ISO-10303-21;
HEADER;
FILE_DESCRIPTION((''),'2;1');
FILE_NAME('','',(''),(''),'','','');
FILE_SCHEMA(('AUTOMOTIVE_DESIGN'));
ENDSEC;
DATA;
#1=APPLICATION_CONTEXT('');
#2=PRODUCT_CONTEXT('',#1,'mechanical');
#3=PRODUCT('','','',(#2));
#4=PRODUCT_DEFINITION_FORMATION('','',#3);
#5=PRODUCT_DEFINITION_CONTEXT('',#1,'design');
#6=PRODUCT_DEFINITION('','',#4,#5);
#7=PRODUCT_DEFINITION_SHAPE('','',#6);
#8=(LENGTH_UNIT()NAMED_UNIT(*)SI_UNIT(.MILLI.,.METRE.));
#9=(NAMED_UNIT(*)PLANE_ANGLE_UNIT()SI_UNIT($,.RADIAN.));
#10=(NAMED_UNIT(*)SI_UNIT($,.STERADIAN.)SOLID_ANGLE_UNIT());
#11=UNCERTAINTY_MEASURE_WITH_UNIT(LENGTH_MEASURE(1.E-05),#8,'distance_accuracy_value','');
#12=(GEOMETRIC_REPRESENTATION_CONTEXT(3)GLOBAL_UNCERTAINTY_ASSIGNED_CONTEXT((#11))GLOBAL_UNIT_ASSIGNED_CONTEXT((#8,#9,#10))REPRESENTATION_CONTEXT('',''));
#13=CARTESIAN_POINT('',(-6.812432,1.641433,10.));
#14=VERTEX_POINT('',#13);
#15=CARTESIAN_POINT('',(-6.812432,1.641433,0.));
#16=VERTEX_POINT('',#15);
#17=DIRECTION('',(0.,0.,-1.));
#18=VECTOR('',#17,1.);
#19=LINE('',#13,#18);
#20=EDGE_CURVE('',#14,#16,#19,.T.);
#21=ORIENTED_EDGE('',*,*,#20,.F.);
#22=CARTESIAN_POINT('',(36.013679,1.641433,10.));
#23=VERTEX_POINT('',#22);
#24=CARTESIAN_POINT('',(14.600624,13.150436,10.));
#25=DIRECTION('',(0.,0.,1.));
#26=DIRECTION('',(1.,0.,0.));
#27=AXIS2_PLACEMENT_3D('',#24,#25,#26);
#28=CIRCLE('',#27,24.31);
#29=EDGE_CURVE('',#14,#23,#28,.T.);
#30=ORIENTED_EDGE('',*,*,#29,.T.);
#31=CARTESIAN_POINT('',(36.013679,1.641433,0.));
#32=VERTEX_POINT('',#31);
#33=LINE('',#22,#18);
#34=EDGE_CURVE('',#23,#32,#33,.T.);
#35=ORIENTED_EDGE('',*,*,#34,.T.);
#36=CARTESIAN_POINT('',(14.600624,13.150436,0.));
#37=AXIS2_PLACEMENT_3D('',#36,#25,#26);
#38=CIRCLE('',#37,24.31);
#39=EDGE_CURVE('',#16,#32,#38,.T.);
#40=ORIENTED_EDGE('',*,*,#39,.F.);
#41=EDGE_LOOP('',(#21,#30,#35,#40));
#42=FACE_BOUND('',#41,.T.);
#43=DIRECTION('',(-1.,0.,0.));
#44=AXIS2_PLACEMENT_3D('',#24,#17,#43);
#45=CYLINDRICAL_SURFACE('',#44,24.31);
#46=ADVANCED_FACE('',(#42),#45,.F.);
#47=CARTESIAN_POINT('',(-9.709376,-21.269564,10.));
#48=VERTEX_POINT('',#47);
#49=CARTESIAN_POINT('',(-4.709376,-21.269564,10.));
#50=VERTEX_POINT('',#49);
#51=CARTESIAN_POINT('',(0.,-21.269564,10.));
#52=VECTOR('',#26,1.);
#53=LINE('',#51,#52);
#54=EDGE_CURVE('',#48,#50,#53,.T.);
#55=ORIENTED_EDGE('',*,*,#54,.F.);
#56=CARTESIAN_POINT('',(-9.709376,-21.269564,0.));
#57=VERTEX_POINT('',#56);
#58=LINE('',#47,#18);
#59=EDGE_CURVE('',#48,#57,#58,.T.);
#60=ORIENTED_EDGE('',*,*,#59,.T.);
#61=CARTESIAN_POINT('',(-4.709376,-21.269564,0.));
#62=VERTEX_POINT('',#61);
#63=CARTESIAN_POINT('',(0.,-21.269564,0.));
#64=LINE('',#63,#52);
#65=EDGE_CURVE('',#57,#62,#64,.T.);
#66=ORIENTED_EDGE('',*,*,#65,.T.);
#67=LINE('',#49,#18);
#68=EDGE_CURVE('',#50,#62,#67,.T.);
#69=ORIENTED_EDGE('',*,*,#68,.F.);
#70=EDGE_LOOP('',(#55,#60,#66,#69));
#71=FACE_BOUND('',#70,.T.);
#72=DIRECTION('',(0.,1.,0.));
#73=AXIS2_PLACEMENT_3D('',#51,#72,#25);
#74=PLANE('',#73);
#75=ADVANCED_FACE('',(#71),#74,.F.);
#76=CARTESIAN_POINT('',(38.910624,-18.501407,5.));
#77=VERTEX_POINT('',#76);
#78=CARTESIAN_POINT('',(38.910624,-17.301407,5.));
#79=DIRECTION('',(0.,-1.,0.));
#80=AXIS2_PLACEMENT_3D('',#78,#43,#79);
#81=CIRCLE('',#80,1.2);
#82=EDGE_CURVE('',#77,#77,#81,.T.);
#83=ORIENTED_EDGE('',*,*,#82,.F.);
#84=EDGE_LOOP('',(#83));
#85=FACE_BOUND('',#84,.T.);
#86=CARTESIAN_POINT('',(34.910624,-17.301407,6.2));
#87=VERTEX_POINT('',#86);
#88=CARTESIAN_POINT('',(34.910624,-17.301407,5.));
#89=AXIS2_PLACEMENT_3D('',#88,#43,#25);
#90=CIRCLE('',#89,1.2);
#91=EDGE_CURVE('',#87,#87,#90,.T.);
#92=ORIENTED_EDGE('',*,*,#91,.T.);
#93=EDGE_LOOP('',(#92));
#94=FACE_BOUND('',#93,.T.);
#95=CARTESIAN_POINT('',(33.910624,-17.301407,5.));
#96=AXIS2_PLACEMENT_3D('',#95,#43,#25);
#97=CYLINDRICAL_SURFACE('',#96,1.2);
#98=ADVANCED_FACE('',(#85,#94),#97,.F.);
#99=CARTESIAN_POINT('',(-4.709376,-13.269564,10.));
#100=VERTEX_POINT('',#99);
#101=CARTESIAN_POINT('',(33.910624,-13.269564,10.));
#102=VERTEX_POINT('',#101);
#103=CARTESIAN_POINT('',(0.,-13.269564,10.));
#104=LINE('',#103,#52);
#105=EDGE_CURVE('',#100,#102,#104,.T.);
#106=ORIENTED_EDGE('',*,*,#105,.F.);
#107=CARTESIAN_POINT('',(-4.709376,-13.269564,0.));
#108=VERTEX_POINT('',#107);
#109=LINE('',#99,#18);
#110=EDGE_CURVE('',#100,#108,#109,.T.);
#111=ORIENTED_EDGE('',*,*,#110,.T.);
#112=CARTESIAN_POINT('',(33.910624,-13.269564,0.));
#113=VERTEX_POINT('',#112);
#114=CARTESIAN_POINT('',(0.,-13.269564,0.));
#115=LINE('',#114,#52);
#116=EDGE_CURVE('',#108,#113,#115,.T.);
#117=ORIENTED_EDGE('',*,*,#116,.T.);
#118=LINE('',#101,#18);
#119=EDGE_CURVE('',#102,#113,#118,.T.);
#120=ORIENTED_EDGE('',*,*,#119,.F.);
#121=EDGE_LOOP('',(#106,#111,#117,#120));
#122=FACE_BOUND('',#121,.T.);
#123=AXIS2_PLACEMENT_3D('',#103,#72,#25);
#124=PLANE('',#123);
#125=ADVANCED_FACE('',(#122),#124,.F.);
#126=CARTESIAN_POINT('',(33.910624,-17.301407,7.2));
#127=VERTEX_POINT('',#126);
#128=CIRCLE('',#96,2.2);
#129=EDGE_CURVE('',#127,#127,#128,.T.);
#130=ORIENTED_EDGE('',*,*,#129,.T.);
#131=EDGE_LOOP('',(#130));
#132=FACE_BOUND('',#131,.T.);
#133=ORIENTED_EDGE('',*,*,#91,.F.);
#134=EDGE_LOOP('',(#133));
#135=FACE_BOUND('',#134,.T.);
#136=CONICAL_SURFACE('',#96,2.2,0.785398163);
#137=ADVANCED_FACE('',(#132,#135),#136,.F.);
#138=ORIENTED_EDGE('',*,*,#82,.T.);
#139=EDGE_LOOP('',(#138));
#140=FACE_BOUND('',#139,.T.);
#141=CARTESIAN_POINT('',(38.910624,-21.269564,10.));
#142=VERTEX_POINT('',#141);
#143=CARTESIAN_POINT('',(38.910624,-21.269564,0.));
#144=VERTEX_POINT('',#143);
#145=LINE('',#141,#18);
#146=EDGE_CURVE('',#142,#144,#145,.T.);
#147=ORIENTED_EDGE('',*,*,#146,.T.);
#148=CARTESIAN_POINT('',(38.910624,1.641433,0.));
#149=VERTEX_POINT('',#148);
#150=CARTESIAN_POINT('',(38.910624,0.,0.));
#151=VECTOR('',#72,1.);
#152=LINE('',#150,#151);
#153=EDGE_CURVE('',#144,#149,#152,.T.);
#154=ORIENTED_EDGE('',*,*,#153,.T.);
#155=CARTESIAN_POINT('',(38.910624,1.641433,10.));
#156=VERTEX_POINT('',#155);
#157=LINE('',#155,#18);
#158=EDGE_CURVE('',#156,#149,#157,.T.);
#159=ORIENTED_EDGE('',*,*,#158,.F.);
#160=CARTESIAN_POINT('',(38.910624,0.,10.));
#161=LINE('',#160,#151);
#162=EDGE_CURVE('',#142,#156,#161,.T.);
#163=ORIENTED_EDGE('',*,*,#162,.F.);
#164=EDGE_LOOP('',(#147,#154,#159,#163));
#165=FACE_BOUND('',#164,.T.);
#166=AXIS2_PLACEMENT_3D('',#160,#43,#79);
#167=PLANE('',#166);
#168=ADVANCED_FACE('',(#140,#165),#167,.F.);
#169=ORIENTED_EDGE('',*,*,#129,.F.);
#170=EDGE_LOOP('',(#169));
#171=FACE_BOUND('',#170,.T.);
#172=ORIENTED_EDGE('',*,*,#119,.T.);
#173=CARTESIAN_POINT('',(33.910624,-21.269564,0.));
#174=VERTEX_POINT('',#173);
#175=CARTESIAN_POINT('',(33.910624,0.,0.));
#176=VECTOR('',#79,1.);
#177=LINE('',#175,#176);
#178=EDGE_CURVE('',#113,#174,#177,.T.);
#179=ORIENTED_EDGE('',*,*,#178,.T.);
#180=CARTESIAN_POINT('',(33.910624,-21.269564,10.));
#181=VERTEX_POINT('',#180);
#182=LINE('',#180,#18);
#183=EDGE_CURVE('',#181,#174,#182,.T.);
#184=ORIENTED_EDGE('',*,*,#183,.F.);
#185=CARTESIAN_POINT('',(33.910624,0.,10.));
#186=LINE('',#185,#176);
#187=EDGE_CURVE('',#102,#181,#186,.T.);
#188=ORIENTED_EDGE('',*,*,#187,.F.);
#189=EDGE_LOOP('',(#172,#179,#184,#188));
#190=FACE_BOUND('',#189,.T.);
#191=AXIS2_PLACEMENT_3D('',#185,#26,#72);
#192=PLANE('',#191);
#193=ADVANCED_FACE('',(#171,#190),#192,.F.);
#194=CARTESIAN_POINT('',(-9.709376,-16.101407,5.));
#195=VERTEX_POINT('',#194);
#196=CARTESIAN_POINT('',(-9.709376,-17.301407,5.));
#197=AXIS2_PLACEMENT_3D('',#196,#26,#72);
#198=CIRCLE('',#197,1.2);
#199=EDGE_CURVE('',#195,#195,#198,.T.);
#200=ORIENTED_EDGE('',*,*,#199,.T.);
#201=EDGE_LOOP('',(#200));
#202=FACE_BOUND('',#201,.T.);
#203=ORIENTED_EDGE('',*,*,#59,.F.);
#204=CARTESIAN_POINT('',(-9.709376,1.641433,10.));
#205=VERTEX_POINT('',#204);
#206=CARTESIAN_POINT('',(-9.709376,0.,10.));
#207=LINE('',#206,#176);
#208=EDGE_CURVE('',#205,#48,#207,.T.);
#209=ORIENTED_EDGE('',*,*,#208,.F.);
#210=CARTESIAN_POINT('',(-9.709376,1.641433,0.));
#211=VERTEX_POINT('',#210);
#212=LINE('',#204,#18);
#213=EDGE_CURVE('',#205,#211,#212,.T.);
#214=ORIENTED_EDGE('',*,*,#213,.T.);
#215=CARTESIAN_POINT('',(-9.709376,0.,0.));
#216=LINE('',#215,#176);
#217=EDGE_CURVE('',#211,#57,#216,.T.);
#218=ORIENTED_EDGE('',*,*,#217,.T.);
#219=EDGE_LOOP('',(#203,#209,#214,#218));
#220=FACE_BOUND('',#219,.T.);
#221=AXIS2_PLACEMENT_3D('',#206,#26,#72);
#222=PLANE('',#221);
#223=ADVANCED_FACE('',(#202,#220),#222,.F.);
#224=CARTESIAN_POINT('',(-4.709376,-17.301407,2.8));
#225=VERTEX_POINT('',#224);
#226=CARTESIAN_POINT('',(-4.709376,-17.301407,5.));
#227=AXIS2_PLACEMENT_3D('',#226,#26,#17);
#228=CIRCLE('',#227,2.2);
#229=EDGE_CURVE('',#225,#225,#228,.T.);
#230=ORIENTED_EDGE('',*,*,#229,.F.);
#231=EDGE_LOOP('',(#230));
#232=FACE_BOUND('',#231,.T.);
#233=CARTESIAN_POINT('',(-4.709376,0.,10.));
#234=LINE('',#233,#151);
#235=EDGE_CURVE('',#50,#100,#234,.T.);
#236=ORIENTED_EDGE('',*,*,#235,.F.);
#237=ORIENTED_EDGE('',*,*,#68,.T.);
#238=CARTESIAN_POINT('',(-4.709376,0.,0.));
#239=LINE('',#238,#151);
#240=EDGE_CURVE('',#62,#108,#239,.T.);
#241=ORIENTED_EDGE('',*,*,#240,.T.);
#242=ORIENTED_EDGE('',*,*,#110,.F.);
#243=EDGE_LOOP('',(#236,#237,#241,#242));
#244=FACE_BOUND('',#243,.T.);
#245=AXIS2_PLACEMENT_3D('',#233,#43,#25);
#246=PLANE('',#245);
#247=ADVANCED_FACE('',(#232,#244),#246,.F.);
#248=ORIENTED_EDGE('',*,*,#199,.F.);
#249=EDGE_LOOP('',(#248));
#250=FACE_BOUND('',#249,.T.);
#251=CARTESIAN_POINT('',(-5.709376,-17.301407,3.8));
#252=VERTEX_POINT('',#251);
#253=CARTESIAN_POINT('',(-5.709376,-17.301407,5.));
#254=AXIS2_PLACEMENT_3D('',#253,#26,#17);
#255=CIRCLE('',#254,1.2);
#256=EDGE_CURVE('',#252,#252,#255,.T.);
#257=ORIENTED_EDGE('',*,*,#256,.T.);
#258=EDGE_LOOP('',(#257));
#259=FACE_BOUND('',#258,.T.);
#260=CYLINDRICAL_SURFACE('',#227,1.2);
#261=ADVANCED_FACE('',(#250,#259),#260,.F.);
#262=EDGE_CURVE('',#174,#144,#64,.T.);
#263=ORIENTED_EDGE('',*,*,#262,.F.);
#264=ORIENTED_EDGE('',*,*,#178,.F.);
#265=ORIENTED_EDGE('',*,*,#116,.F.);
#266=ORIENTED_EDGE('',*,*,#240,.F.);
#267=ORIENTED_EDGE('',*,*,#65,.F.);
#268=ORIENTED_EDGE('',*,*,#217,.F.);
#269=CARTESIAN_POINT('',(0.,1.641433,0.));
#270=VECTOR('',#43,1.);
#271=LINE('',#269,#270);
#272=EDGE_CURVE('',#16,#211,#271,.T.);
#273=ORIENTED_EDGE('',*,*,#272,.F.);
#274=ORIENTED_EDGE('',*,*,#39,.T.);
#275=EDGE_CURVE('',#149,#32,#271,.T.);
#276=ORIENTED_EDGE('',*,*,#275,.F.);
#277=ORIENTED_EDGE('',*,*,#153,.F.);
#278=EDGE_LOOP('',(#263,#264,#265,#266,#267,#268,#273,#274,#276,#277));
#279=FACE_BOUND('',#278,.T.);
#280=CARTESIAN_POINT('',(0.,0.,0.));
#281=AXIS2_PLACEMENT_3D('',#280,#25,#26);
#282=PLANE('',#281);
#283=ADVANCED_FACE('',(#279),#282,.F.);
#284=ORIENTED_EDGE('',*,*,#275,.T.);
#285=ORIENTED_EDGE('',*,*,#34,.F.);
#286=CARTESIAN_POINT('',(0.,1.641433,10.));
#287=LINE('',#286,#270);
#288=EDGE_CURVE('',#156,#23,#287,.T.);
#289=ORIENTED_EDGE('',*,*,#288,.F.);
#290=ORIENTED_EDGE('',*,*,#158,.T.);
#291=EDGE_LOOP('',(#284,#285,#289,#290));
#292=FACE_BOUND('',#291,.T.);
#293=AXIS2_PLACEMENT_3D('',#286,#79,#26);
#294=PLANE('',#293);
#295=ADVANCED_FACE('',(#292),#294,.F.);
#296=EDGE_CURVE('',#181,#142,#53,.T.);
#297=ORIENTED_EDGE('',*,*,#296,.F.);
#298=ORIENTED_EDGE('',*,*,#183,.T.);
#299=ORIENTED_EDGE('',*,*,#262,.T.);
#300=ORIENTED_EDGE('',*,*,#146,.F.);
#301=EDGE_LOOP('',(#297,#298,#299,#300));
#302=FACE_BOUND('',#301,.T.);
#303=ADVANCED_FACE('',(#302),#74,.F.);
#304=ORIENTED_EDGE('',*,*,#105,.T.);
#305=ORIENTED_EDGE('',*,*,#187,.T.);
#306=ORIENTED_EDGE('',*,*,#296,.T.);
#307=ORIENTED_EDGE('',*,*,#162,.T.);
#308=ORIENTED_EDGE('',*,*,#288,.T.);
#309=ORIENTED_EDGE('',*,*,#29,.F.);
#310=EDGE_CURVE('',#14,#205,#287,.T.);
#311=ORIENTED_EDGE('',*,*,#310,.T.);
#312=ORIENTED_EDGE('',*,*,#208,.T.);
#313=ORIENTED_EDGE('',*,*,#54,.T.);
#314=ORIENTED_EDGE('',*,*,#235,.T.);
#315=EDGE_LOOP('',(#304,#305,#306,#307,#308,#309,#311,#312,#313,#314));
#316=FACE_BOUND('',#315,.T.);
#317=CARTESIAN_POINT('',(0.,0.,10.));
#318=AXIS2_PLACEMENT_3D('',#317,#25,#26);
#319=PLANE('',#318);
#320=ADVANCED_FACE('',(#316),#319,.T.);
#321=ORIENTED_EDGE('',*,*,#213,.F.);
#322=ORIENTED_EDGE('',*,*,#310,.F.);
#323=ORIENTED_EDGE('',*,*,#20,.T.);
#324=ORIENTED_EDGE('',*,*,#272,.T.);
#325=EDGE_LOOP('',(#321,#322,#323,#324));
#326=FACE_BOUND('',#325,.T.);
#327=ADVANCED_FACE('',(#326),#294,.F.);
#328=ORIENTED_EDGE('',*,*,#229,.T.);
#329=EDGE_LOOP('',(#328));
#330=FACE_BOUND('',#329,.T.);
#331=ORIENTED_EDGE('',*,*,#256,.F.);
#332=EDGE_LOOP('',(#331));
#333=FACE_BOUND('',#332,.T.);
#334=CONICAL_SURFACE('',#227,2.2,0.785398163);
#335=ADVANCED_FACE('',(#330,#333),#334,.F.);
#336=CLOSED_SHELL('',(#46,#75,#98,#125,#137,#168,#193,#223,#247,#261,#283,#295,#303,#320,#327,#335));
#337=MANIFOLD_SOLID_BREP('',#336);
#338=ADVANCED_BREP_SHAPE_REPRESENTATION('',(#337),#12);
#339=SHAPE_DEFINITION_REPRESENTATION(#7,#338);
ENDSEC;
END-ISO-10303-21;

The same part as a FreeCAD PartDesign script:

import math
import FreeCAD as App
import Part
import Sketcher
Q = App.Units.Quantity

doc = App.newDocument("Part")
params = doc.addObject("Spreadsheet::Sheet", "Params")
for row, (alias, value) in enumerate([
    ("sketch1_width", "5 mm"),
    ("sketch1_height", "8 mm"),
    ("sketch1_radius", "24.31 mm"),
    ("sketch1_width2", "38.62 mm"),
    ("pad1_length", "10 mm"),
    ("sketch2_width", "15.5 mm"),
    ("sketch2_height", "2.2 mm"),
    ("groove_angle", "360 deg"),
], start=1):
    params.set(f"A{row}", alias)
    params.set(f"B{row}", "=" + value)
    params.setAlias(f"B{row}", alias)

body = doc.addObject("PartDesign::Body", "Body")

# Sketch on XY plane
sketch1 = body.newObject("Sketcher::SketchObject", "Sketch")
sketch1.AttachmentSupport = (doc.getObject("XY_Plane"), [""])
sketch1.MapMode = "FlatFace"
sketch1.addGeometry([
    Part.LineSegment(App.Vector(-9.7, 1.6, 0), App.Vector(-9.7, -21.3, 0)),  # 0
    Part.LineSegment(App.Vector(-9.7, -21.3, 0), App.Vector(-4.7, -21.3, 0)),  # 1
    Part.LineSegment(App.Vector(-4.7, -21.3, 0), App.Vector(-4.7, -13.3, 0)),  # 2
    Part.LineSegment(App.Vector(-4.7, -13.3, 0), App.Vector(33.9, -13.3, 0)),  # 3
    Part.LineSegment(App.Vector(33.9, -13.3, 0), App.Vector(33.9, -21.3, 0)),  # 4
    Part.LineSegment(App.Vector(33.9, -21.3, 0), App.Vector(38.9, -21.3, 0)),  # 5
    Part.LineSegment(App.Vector(38.9, -21.3, 0), App.Vector(38.9, 1.6, 0)),  # 6
    Part.LineSegment(App.Vector(38.9, 1.6, 0), App.Vector(36, 1.6, 0)),  # 7
    Part.ArcOfCircle(Part.Circle(App.Vector(14.6, 13.2, 0), App.Vector(0, 0, 1), 24.3), math.radians(-90), math.radians(-28)),  # 8
    Part.ArcOfCircle(Part.Circle(App.Vector(14.6, 13.2, 0), App.Vector(0, 0, 1), 24.3), math.radians(-152), math.radians(-90)),  # 9
    Part.LineSegment(App.Vector(-6.8, 1.6, 0), App.Vector(-9.7, 1.6, 0)),  # 10
], False)
sketch1.addConstraint([
    Sketcher.Constraint("Coincident", 0, 2, 1, 1),
    Sketcher.Constraint("Coincident", 1, 2, 2, 1),
    Sketcher.Constraint("Coincident", 2, 2, 3, 1),
    Sketcher.Constraint("Coincident", 3, 2, 4, 1),
    Sketcher.Constraint("Coincident", 4, 2, 5, 1),
    Sketcher.Constraint("Coincident", 5, 2, 6, 1),
    Sketcher.Constraint("Coincident", 6, 2, 7, 1),
    Sketcher.Constraint("Coincident", 7, 2, 8, 2),
    Sketcher.Constraint("Tangent", 8, 1, 9, 2),
    Sketcher.Constraint("Coincident", 9, 1, 10, 1),
    Sketcher.Constraint("Coincident", 10, 2, 0, 1),
    Sketcher.Constraint("Vertical", 0),
    Sketcher.Constraint("Horizontal", 1),
    Sketcher.Constraint("Vertical", 2),
    Sketcher.Constraint("Horizontal", 3),
    Sketcher.Constraint("Vertical", 4),
    Sketcher.Constraint("Horizontal", 5),
    Sketcher.Constraint("Vertical", 6),
    Sketcher.Constraint("Horizontal", 7),
    Sketcher.Constraint("Horizontal", 10),
    Sketcher.Constraint("Equal", 8, 9),
    Sketcher.Constraint("Horizontal", 1, 2, 4, 2),
    Sketcher.Constraint("Horizontal", 7, 2, 9, 1),
    Sketcher.Constraint("Vertical", 9, 3, 8, 1),
    Sketcher.Constraint("Equal", 1, 5),
    Sketcher.Constraint("Equal", 7, 10),
    Sketcher.Constraint("DistanceX", 1, 1, 1, 2, Q("5 mm")),
    Sketcher.Constraint("DistanceY", 2, 1, 2, 2, Q("8 mm")),
    Sketcher.Constraint("Radius", 8, Q("24.31 mm")),
    Sketcher.Constraint("DistanceX", 3, 1, 3, 2, Q("38.62 mm")),
    Sketcher.Constraint("DistanceY", 0, 2, 8, 3, Q("34.42 mm")),
    Sketcher.Constraint("DistanceX", 7, 2, 7, 1, Q("2.896945 mm")),
    Sketcher.Constraint("DistanceX", -1, 1, 7, 2, Q("36.013679 mm")),
    Sketcher.Constraint("DistanceY", -1, 1, 8, 3, Q("13.150436 mm")),
])
sketch1.setExpression("Constraints[26]", "Params.sketch1_width")
sketch1.setExpression("Constraints[27]", "Params.sketch1_height")
sketch1.setExpression("Constraints[28]", "Params.sketch1_radius")
sketch1.setExpression("Constraints[29]", "Params.sketch1_width2")
pad1 = body.newObject("PartDesign::Pad", "Pad")
pad1.Profile = sketch1
pad1.setExpression("Length", "Params.pad1_length")

# Sketch on XZ plane
sketch2 = body.newObject("Sketcher::SketchObject", "Sketch001")
sketch2.AttachmentSupport = (doc.getObject("XZ_Plane"), [""])
sketch2.MapMode = "FlatFace"
sketch2.AttachmentOffset = App.Placement(App.Vector(0, 0, 17.301407), App.Rotation())
sketch2.addGeometry([
    Part.LineSegment(App.Vector(-21.9, 5, 0), App.Vector(-4.7, 5, 0)),  # 0
    Part.LineSegment(App.Vector(-4.7, 5, 0), App.Vector(-4.7, 2.8, 0)),  # 1
    Part.LineSegment(App.Vector(-4.7, 2.8, 0), App.Vector(-5.7, 3.8, 0)),  # 2
    Part.LineSegment(App.Vector(-5.7, 3.8, 0), App.Vector(-21.2, 3.8, 0)),  # 3
    Part.LineSegment(App.Vector(-21.2, 3.8, 0), App.Vector(-21.9, 5, 0)),  # 4
], False)
sketch2.addGeometry(Part.LineSegment(App.Vector(-4.7, 5, 0), App.Vector(-21.9, 5, 0)), True)  # axis
sketch2.addConstraint([
    Sketcher.Constraint("Coincident", 0, 2, 1, 1),
    Sketcher.Constraint("Coincident", 1, 2, 2, 1),
    Sketcher.Constraint("Coincident", 2, 2, 3, 1),
    Sketcher.Constraint("Coincident", 3, 2, 4, 1),
    Sketcher.Constraint("Coincident", 4, 2, 0, 1),
    Sketcher.Constraint("Horizontal", 0),
    Sketcher.Constraint("Vertical", 1),
    Sketcher.Constraint("Horizontal", 3),
    Sketcher.Constraint("Horizontal", 5),
    Sketcher.Constraint("Coincident", 5, 1, 0, 2),
    Sketcher.Constraint("Equal", 0, 5),
    Sketcher.Constraint("Angle", 2, Q("135 deg")),
    Sketcher.Constraint("Angle", 4, Q("121 deg")),
    Sketcher.Constraint("DistanceX", 3, 2, 3, 1, Q("15.5 mm")),
    Sketcher.Constraint("DistanceY", 1, 2, 1, 1, Q("2.2 mm")),
    Sketcher.Constraint("DistanceY", -1, 1, 0, 2, Q("5 mm")),
    Sketcher.Constraint("DistanceX", 2, 2, 1, 2, Q("1 mm")),
    Sketcher.Constraint("DistanceX", 4, 2, -1, 1, Q("21.930409 mm")),
])
sketch2.setExpression("Constraints[13]", "Params.sketch2_width")
sketch2.setExpression("Constraints[14]", "Params.sketch2_height")
groove = body.newObject("PartDesign::Groove", "Groove")
groove.Profile = sketch2
groove.ReferenceAxis = (sketch2, ["Axis0"])
groove.setExpression("Angle", "Params.groove_angle")
doc.recompute()

datumplane = body.newObject("PartDesign::Plane", "DatumPlane")
datumplane.AttachmentSupport = (doc.getObject("YZ_Plane"), [""])
datumplane.MapMode = "FlatFace"
datumplane.AttachmentOffset = App.Placement(App.Vector(0, 0, 14.600624), App.Rotation())
mirrored = body.newObject("PartDesign::Mirrored", "Mirrored")
mirrored.Originals = [groove]
mirrored.MirrorPlane = (datumplane, [""])
body.Tip = mirrored

doc.recompute()
